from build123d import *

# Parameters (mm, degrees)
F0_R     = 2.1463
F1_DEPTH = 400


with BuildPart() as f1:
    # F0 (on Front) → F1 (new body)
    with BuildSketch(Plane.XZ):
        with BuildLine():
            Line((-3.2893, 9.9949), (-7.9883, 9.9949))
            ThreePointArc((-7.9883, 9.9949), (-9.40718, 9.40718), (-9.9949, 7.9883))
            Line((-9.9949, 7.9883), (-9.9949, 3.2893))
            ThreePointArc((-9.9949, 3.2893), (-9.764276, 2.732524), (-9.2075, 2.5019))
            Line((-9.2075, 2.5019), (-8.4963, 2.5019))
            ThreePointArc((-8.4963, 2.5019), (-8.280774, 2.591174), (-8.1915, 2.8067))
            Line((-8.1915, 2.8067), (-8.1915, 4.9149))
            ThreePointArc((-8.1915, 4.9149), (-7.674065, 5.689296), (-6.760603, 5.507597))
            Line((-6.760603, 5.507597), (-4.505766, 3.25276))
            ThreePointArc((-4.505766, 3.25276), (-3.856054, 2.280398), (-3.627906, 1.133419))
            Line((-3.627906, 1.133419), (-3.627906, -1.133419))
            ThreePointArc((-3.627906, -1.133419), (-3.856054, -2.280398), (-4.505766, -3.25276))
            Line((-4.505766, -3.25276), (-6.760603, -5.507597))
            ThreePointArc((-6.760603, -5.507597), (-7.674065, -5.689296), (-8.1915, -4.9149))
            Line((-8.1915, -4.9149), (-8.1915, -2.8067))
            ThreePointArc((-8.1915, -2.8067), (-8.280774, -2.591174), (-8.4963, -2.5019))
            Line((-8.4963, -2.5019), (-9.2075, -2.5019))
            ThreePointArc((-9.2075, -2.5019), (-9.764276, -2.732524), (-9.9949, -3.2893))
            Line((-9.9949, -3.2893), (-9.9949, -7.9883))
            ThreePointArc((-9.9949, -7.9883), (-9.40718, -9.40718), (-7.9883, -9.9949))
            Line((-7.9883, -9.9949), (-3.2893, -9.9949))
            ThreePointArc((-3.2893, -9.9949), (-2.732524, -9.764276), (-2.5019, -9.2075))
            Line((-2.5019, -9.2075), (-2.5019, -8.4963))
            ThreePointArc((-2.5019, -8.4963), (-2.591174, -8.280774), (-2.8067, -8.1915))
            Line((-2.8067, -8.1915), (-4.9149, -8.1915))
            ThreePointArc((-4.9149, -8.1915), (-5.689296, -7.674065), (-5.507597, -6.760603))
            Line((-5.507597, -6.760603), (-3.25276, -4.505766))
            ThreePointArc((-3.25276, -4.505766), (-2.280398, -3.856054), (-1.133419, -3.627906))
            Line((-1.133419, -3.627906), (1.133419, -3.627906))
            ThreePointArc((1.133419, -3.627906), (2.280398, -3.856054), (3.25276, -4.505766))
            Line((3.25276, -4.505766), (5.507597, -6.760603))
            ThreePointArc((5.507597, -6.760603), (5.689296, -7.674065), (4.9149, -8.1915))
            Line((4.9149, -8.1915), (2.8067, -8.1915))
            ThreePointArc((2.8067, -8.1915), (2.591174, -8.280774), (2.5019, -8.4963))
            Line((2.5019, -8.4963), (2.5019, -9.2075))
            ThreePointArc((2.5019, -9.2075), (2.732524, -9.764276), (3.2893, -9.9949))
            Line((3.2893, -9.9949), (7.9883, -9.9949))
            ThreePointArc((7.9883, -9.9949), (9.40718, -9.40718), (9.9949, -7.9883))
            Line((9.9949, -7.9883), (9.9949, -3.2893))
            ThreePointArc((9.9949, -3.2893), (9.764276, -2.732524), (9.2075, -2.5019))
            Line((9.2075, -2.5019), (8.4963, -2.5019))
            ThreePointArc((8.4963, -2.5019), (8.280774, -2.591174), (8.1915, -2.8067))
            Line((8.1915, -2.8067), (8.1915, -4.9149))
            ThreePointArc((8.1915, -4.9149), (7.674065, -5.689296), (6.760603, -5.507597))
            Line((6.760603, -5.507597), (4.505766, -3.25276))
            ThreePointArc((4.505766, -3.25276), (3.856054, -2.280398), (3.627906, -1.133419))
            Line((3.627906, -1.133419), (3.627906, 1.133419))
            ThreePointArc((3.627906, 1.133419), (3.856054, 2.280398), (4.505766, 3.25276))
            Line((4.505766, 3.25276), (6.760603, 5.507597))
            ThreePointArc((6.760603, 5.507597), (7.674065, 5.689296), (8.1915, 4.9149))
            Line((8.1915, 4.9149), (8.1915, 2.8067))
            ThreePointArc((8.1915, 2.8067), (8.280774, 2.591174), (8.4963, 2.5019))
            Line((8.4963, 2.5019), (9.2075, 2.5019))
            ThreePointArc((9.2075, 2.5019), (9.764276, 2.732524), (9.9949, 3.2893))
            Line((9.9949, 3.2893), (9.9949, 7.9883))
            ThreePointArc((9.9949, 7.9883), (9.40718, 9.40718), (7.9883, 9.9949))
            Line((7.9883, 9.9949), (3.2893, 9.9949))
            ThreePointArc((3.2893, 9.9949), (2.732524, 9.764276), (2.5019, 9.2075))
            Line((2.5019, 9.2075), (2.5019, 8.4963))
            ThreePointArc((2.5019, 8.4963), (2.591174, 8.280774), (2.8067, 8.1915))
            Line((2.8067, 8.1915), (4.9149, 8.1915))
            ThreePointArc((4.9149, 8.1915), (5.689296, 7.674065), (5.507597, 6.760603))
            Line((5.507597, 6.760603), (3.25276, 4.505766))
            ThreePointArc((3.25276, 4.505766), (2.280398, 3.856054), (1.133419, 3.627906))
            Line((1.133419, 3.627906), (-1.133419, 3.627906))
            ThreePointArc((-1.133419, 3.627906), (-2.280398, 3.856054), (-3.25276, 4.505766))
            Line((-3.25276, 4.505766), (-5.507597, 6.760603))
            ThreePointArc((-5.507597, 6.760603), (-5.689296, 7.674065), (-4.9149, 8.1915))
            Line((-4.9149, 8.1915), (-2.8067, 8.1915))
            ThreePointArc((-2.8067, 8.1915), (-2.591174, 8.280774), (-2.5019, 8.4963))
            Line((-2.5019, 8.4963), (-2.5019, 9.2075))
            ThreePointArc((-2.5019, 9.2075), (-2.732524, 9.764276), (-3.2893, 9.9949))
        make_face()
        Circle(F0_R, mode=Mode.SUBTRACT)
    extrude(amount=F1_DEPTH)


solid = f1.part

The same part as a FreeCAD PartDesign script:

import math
import FreeCAD as App
import Part
import Sketcher
Q = App.Units.Quantity

doc = App.newDocument("Part")
body = doc.addObject("PartDesign::Body", "Body")

# Sketch on XZ plane
sketch1 = body.newObject("Sketcher::SketchObject", "Sketch")
sketch1.AttachmentSupport = (doc.getObject("XZ_Plane"), [""])
sketch1.MapMode = "FlatFace"
sketch1.addGeometry(Part.LineSegment(App.Vector(-3.29, 9.99, 0), App.Vector(-7.99, 9.99, 0)), False)
sketch1.addGeometry(Part.ArcOfCircle(Part.Circle(App.Vector(-7.99, 7.99, 0), App.Vector(0, 0, 1), 2.01), math.radians(90), math.radians(180)), False)
sketch1.addGeometry(Part.LineSegment(App.Vector(-9.99, 7.99, 0), App.Vector(-9.99, 3.29, 0)), False)
sketch1.addGeometry(Part.ArcOfCircle(Part.Circle(App.Vector(-9.21, 3.29, 0), App.Vector(0, 0, 1), 0.79), math.radians(180), math.radians(270)), False)
sketch1.addGeometry(Part.LineSegment(App.Vector(-9.21, 2.5, 0), App.Vector(-8.5, 2.5, 0)), False)
sketch1.addGeometry(Part.ArcOfCircle(Part.Circle(App.Vector(-8.5, 2.81, 0), App.Vector(0, 0, 1), 0.3), math.radians(-90), math.radians(0)), False)
sketch1.addGeometry(Part.LineSegment(App.Vector(-8.19, 2.81, 0), App.Vector(-8.19, 4.91, 0)), False)
sketch1.addGeometry(Part.ArcOfCircle(Part.Circle(App.Vector(-7.35, 4.91, 0), App.Vector(0, 0, 1), 0.84), math.radians(45), math.radians(180)), False)
sketch1.addGeometry(Part.LineSegment(App.Vector(-6.76, 5.51, 0), App.Vector(-4.51, 3.25, 0)), False)
sketch1.addGeometry(Part.ArcOfCircle(Part.Circle(App.Vector(-6.63, 1.13, 0), App.Vector(0, 0, 1), 3), math.radians(0), math.radians(45)), False)
sketch1.addGeometry(Part.LineSegment(App.Vector(-3.63, 1.13, 0), App.Vector(-3.63, -1.13, 0)), False)
sketch1.addGeometry(Part.ArcOfCircle(Part.Circle(App.Vector(-6.63, -1.13, 0), App.Vector(0, 0, 1), 3), math.radians(-45), math.radians(0)), False)
sketch1.addGeometry(Part.LineSegment(App.Vector(-4.51, -3.25, 0), App.Vector(-6.76, -5.51, 0)), False)
sketch1.addGeometry(Part.ArcOfCircle(Part.Circle(App.Vector(-7.35, -4.91, 0), App.Vector(0, 0, 1), 0.84), math.radians(180), math.radians(315)), False)
sketch1.addGeometry(Part.LineSegment(App.Vector(-8.19, -4.91, 0), App.Vector(-8.19, -2.81, 0)), False)
sketch1.addGeometry(Part.ArcOfCircle(Part.Circle(App.Vector(-8.5, -2.81, 0), App.Vector(0, 0, 1), 0.3), math.radians(0), math.radians(90)), False)
sketch1.addGeometry(Part.LineSegment(App.Vector(-8.5, -2.5, 0), App.Vector(-9.21, -2.5, 0)), False)
sketch1.addGeometry(Part.ArcOfCircle(Part.Circle(App.Vector(-9.21, -3.29, 0), App.Vector(0, 0, 1), 0.79), math.radians(90), math.radians(180)), False)
sketch1.addGeometry(Part.LineSegment(App.Vector(-9.99, -3.29, 0), App.Vector(-9.99, -7.99, 0)), False)
sketch1.addGeometry(Part.ArcOfCircle(Part.Circle(App.Vector(-7.99, -7.99, 0), App.Vector(0, 0, 1), 2.01), math.radians(-180), math.radians(-90)), False)
sketch1.addGeometry(Part.LineSegment(App.Vector(-7.99, -9.99, 0), App.Vector(-3.29, -9.99, 0)), False)
sketch1.addGeometry(Part.ArcOfCircle(Part.Circle(App.Vector(-3.29, -9.21, 0), App.Vector(0, 0, 1), 0.79), math.radians(-90), math.radians(0)), False)
sketch1.addGeometry(Part.LineSegment(App.Vector(-2.5, -9.21, 0), App.Vector(-2.5, -8.5, 0)), False)
sketch1.addGeometry(Part.ArcOfCircle(Part.Circle(App.Vector(-2.81, -8.5, 0), App.Vector(0, 0, 1), 0.3), math.radians(0), math.radians(90)), False)
sketch1.addGeometry(Part.LineSegment(App.Vector(-2.81, -8.19, 0), App.Vector(-4.91, -8.19, 0)), False)
sketch1.addGeometry(Part.ArcOfCircle(Part.Circle(App.Vector(-4.91, -7.35, 0), App.Vector(0, 0, 1), 0.84), math.radians(135), math.radians(270)), False)
sketch1.addGeometry(Part.LineSegment(App.Vector(-5.51, -6.76, 0), App.Vector(-3.25, -4.51, 0)), False)
sketch1.addGeometry(Part.ArcOfCircle(Part.Circle(App.Vector(-1.13, -6.63, 0), App.Vector(0, 0, 1), 3), math.radians(90), math.radians(135)), False)
sketch1.addGeometry(Part.LineSegment(App.Vector(-1.13, -3.63, 0), App.Vector(1.13, -3.63, 0)), False)
sketch1.addGeometry(Part.ArcOfCircle(Part.Circle(App.Vector(1.13, -6.63, 0), App.Vector(0, 0, 1), 3), math.radians(45), math.radians(90)), False)
sketch1.addGeometry(Part.LineSegment(App.Vector(3.25, -4.51, 0), App.Vector(5.51, -6.76, 0)), False)
sketch1.addGeometry(Part.ArcOfCircle(Part.Circle(App.Vector(4.91, -7.35, 0), App.Vector(0, 0, 1), 0.84), math.radians(-90), math.radians(45)), False)
sketch1.addGeometry(Part.LineSegment(App.Vector(4.91, -8.19, 0), App.Vector(2.81, -8.19, 0)), False)
sketch1.addGeometry(Part.ArcOfCircle(Part.Circle(App.Vector(2.81, -8.5, 0), App.Vector(0, 0, 1), 0.3), math.radians(90), math.radians(180)), False)
sketch1.addGeometry(Part.LineSegment(App.Vector(2.5, -8.5, 0), App.Vector(2.5, -9.21, 0)), False)
sketch1.addGeometry(Part.ArcOfCircle(Part.Circle(App.Vector(3.29, -9.21, 0), App.Vector(0, 0, 1), 0.79), math.radians(180), math.radians(270)), False)
sketch1.addGeometry(Part.LineSegment(App.Vector(3.29, -9.99, 0), App.Vector(7.99, -9.99, 0)), False)
sketch1.addGeometry(Part.ArcOfCircle(Part.Circle(App.Vector(7.99, -7.99, 0), App.Vector(0, 0, 1), 2.01), math.radians(-90), math.radians(0)), False)
sketch1.addGeometry(Part.LineSegment(App.Vector(9.99, -7.99, 0), App.Vector(9.99, -3.29, 0)), False)
sketch1.addGeometry(Part.ArcOfCircle(Part.Circle(App.Vector(9.21, -3.29, 0), App.Vector(0, 0, 1), 0.79), math.radians(0), math.radians(90)), False)
sketch1.addGeometry(Part.LineSegment(App.Vector(9.21, -2.5, 0), App.Vector(8.5, -2.5, 0)), False)
sketch1.addGeometry(Part.ArcOfCircle(Part.Circle(App.Vector(8.5, -2.81, 0), App.Vector(0, 0, 1), 0.3), math.radians(90), math.radians(180)), False)
sketch1.addGeometry(Part.LineSegment(App.Vector(8.19, -2.81, 0), App.Vector(8.19, -4.91, 0)), False)
sketch1.addGeometry(Part.ArcOfCircle(Part.Circle(App.Vector(7.35, -4.91, 0), App.Vector(0, 0, 1), 0.84), math.radians(-135), math.radians(0)), False)
sketch1.addGeometry(Part.LineSegment(App.Vector(6.76, -5.51, 0), App.Vector(4.51, -3.25, 0)), False)
sketch1.addGeometry(Part.ArcOfCircle(Part.Circle(App.Vector(6.63, -1.13, 0), App.Vector(0, 0, 1), 3), math.radians(180), math.radians(225)), False)
sketch1.addGeometry(Part.LineSegment(App.Vector(3.63, -1.13, 0), App.Vector(3.63, 1.13, 0)), False)
sketch1.addGeometry(Part.ArcOfCircle(Part.Circle(App.Vector(6.63, 1.13, 0), App.Vector(0, 0, 1), 3), math.radians(135), math.radians(180)), False)
sketch1.addGeometry(Part.LineSegment(App.Vector(4.51, 3.25, 0), App.Vector(6.76, 5.51, 0)), False)
sketch1.addGeometry(Part.ArcOfCircle(Part.Circle(App.Vector(7.35, 4.91, 0), App.Vector(0, 0, 1), 0.84), math.radians(0), math.radians(135)), False)
sketch1.addGeometry(Part.LineSegment(App.Vector(8.19, 4.91, 0), App.Vector(8.19, 2.81, 0)), False)
sketch1.addGeometry(Part.ArcOfCircle(Part.Circle(App.Vector(8.5, 2.81, 0), App.Vector(0, 0, 1), 0.3), math.radians(-180), math.radians(-90)), False)
sketch1.addGeometry(Part.LineSegment(App.Vector(8.5, 2.5, 0), App.Vector(9.21, 2.5, 0)), False)
sketch1.addGeometry(Part.ArcOfCircle(Part.Circle(App.Vector(9.21, 3.29, 0), App.Vector(0, 0, 1), 0.79), math.radians(-90), math.radians(0)), False)
sketch1.addGeometry(Part.LineSegment(App.Vector(9.99, 3.29, 0), App.Vector(9.99, 7.99, 0)), False)
sketch1.addGeometry(Part.ArcOfCircle(Part.Circle(App.Vector(7.99, 7.99, 0), App.Vector(0, 0, 1), 2.01), math.radians(0), math.radians(90)), False)
sketch1.addGeometry(Part.LineSegment(App.Vector(7.99, 9.99, 0), App.Vector(3.29, 9.99, 0)), False)
sketch1.addGeometry(Part.ArcOfCircle(Part.Circle(App.Vector(3.29, 9.21, 0), App.Vector(0, 0, 1), 0.79), math.radians(90), math.radians(180)), False)
sketch1.addGeometry(Part.LineSegment(App.Vector(2.5, 9.21, 0), App.Vector(2.5, 8.5, 0)), False)
sketch1.addGeometry(Part.ArcOfCircle(Part.Circle(App.Vector(2.81, 8.5, 0), App.Vector(0, 0, 1), 0.3), math.radians(-180), math.radians(-90)), False)
sketch1.addGeometry(Part.LineSegment(App.Vector(2.81, 8.19, 0), App.Vector(4.91, 8.19, 0)), False)
sketch1.addGeometry(Part.ArcOfCircle(Part.Circle(App.Vector(4.91, 7.35, 0), App.Vector(0, 0, 1), 0.84), math.radians(-45), math.radians(90)), False)
sketch1.addGeometry(Part.LineSegment(App.Vector(5.51, 6.76, 0), App.Vector(3.25, 4.51, 0)), False)
sketch1.addGeometry(Part.ArcOfCircle(Part.Circle(App.Vector(1.13, 6.63, 0), App.Vector(0, 0, 1), 3), math.radians(-90), math.radians(-45)), False)
sketch1.addGeometry(Part.LineSegment(App.Vector(1.13, 3.63, 0), App.Vector(-1.13, 3.63, 0)), False)
sketch1.addGeometry(Part.ArcOfCircle(Part.Circle(App.Vector(-1.13, 6.63, 0), App.Vector(0, 0, 1), 3), math.radians(-135), math.radians(-90)), False)
sketch1.addGeometry(Part.LineSegment(App.Vector(-3.25, 4.51, 0), App.Vector(-5.51, 6.76, 0)), False)
sketch1.addGeometry(Part.ArcOfCircle(Part.Circle(App.Vector(-4.91, 7.35, 0), App.Vector(0, 0, 1), 0.84), math.radians(90), math.radians(225)), False)
sketch1.addGeometry(Part.LineSegment(App.Vector(-4.91, 8.19, 0), App.Vector(-2.81, 8.19, 0)), False)
sketch1.addGeometry(Part.ArcOfCircle(Part.Circle(App.Vector(-2.81, 8.5, 0), App.Vector(0, 0, 1), 0.3), math.radians(-90), math.radians(0)), False)
sketch1.addGeometry(Part.LineSegment(App.Vector(-2.5, 8.5, 0), App.Vector(-2.5, 9.21, 0)), False)
sketch1.addGeometry(Part.ArcOfCircle(Part.Circle(App.Vector(-3.29, 9.21, 0), App.Vector(0, 0, 1), 0.79), math.radians(0), math.radians(90)), False)
sketch1.addGeometry(Part.Circle(App.Vector(0, 0, 0), App.Vector(0, 0, 1), 2.15), False)
sketch1.addConstraint(Sketcher.Constraint("Tangent", 0, 2, 1, 1))
sketch1.addConstraint(Sketcher.Constraint("Tangent", 1, 2, 2, 1))
sketch1.addConstraint(Sketcher.Constraint("Tangent", 2, 2, 3, 1))
sketch1.addConstraint(Sketcher.Constraint("Tangent", 3, 2, 4, 1))
sketch1.addConstraint(Sketcher.Constraint("Tangent", 4, 2, 5, 1))
sketch1.addConstraint(Sketcher.Constraint("Tangent", 5, 2, 6, 1))
sketch1.addConstraint(Sketcher.Constraint("Tangent", 6, 2, 7, 2))
sketch1.addConstraint(Sketcher.Constraint("Tangent", 7, 1, 8, 1))
sketch1.addConstraint(Sketcher.Constraint("Tangent", 8, 2, 9, 2))
sketch1.addConstraint(Sketcher.Constraint("Tangent", 9, 1, 10, 1))
sketch1.addConstraint(Sketcher.Constraint("Tangent", 10, 2, 11, 2))
sketch1.addConstraint(Sketcher.Constraint("Tangent", 11, 1, 12, 1))
sketch1.addConstraint(Sketcher.Constraint("Tangent", 12, 2, 13, 2))
sketch1.addConstraint(Sketcher.Constraint("Tangent", 13, 1, 14, 1))
sketch1.addConstraint(Sketcher.Constraint("Tangent", 14, 2, 15, 1))
sketch1.addConstraint(Sketcher.Constraint("Tangent", 15, 2, 16, 1))
sketch1.addConstraint(Sketcher.Constraint("Tangent", 16, 2, 17, 1))
sketch1.addConstraint(Sketcher.Constraint("Tangent", 17, 2, 18, 1))
sketch1.addConstraint(Sketcher.Constraint("Tangent", 18, 2, 19, 1))
sketch1.addConstraint(Sketcher.Constraint("Tangent", 19, 2, 20, 1))
sketch1.addConstraint(Sketcher.Constraint("Tangent", 20, 2, 21, 1))
sketch1.addConstraint(Sketcher.Constraint("Tangent", 21, 2, 22, 1))
sketch1.addConstraint(Sketcher.Constraint("Tangent", 22, 2, 23, 1))
sketch1.addConstraint(Sketcher.Constraint("Tangent", 23, 2, 24, 1))
sketch1.addConstraint(Sketcher.Constraint("Tangent", 24, 2, 25, 2))
sketch1.addConstraint(Sketcher.Constraint("Tangent", 25, 1, 26, 1))
sketch1.addConstraint(Sketcher.Constraint("Tangent", 26, 2, 27, 2))
sketch1.addConstraint(Sketcher.Constraint("Tangent", 27, 1, 28, 1))
sketch1.addConstraint(Sketcher.Constraint("Tangent", 28, 2, 29, 2))
sketch1.addConstraint(Sketcher.Constraint("Tangent", 29, 1, 30, 1))
sketch1.addConstraint(Sketcher.Constraint("Tangent", 30, 2, 31, 2))
sketch1.addConstraint(Sketcher.Constraint("Tangent", 31, 1, 32, 1))
sketch1.addConstraint(Sketcher.Constraint("Tangent", 32, 2, 33, 1))
sketch1.addConstraint(Sketcher.Constraint("Tangent", 33, 2, 34, 1))
sketch1.addConstraint(Sketcher.Constraint("Tangent", 34, 2, 35, 1))
sketch1.addConstraint(Sketcher.Constraint("Tangent", 35, 2, 36, 1))
sketch1.addConstraint(Sketcher.Constraint("Tangent", 36, 2, 37, 1))
sketch1.addConstraint(Sketcher.Constraint("Tangent", 37, 2, 38, 1))
sketch1.addConstraint(Sketcher.Constraint("Tangent", 38, 2, 39, 1))
sketch1.addConstraint(Sketcher.Constraint("Tangent", 39, 2, 40, 1))
sketch1.addConstraint(Sketcher.Constraint("Tangent", 40, 2, 41, 1))
sketch1.addConstraint(Sketcher.Constraint("Tangent", 41, 2, 42, 1))
sketch1.addConstraint(Sketcher.Constraint("Tangent", 42, 2, 43, 2))
sketch1.addConstraint(Sketcher.Constraint("Tangent", 43, 1, 44, 1))
sketch1.addConstraint(Sketcher.Constraint("Tangent", 44, 2, 45, 2))
sketch1.addConstraint(Sketcher.Constraint("Tangent", 45, 1, 46, 1))
sketch1.addConstraint(Sketcher.Constraint("Tangent", 46, 2, 47, 2))
sketch1.addConstraint(Sketcher.Constraint("Tangent", 47, 1, 48, 1))
sketch1.addConstraint(Sketcher.Constraint("Tangent", 48, 2, 49, 2))
sketch1.addConstraint(Sketcher.Constraint("Tangent", 49, 1, 50, 1))
sketch1.addConstraint(Sketcher.Constraint("Tangent", 50, 2, 51, 1))
sketch1.addConstraint(Sketcher.Constraint("Tangent", 51, 2, 52, 1))
sketch1.addConstraint(Sketcher.Constraint("Tangent", 52, 2, 53, 1))
sketch1.addConstraint(Sketcher.Constraint("Tangent", 53, 2, 54, 1))
sketch1.addConstraint(Sketcher.Constraint("Tangent", 54, 2, 55, 1))
sketch1.addConstraint(Sketcher.Constraint("Tangent", 55, 2, 56, 1))
sketch1.addConstraint(Sketcher.Constraint("Tangent", 56, 2, 57, 1))
sketch1.addConstraint(Sketcher.Constraint("Tangent", 57, 2, 58, 1))
sketch1.addConstraint(Sketcher.Constraint("Tangent", 58, 2, 59, 1))
sketch1.addConstraint(Sketcher.Constraint("Tangent", 59, 2, 60, 1))
sketch1.addConstraint(Sketcher.Constraint("Tangent", 60, 2, 61, 2))
sketch1.addConstraint(Sketcher.Constraint("Tangent", 61, 1, 62, 1))
sketch1.addConstraint(Sketcher.Constraint("Tangent", 62, 2, 63, 2))
sketch1.addConstraint(Sketcher.Constraint("Tangent", 63, 1, 64, 1))
sketch1.addConstraint(Sketcher.Constraint("Tangent", 64, 2, 65, 2))
sketch1.addConstraint(Sketcher.Constraint("Tangent", 65, 1, 66, 1))
sketch1.addConstraint(Sketcher.Constraint("Tangent", 66, 2, 67, 2))
sketch1.addConstraint(Sketcher.Constraint("Tangent", 67, 1, 68, 1))
sketch1.addConstraint(Sketcher.Constraint("Tangent", 68, 2, 69, 1))
sketch1.addConstraint(Sketcher.Constraint("Tangent", 69, 2, 70, 1))
sketch1.addConstraint(Sketcher.Constraint("Tangent", 70, 2, 71, 1))
sketch1.addConstraint(Sketcher.Constraint("Tangent", 71, 2, 0, 1))
sketch1.addConstraint(Sketcher.Constraint("Horizontal", 0))
sketch1.addConstraint(Sketcher.Constraint("Vertical", 2))
sketch1.addConstraint(Sketcher.Constraint("Horizontal", 4))
sketch1.addConstraint(Sketcher.Constraint("Vertical", 6))
sketch1.addConstraint(Sketcher.Constraint("Vertical", 10))
sketch1.addConstraint(Sketcher.Constraint("Vertical", 14))
sketch1.addConstraint(Sketcher.Constraint("Horizontal", 16))
sketch1.addConstraint(Sketcher.Constraint("Vertical", 18))
sketch1.addConstraint(Sketcher.Constraint("Horizontal", 20))
sketch1.addConstraint(Sketcher.Constraint("Vertical", 22))
sketch1.addConstraint(Sketcher.Constraint("Horizontal", 24))
sketch1.addConstraint(Sketcher.Constraint("Horizontal", 28))
sketch1.addConstraint(Sketcher.Constraint("Horizontal", 32))
sketch1.addConstraint(Sketcher.Constraint("Vertical", 34))
sketch1.addConstraint(Sketcher.Constraint("Horizontal", 36))
sketch1.addConstraint(Sketcher.Constraint("Vertical", 38))
sketch1.addConstraint(Sketcher.Constraint("Horizontal", 40))
sketch1.addConstraint(Sketcher.Constraint("Vertical", 42))
sketch1.addConstraint(Sketcher.Constraint("Vertical", 46))
sketch1.addConstraint(Sketcher.Constraint("Vertical", 50))
sketch1.addConstraint(Sketcher.Constraint("Horizontal", 52))
sketch1.addConstraint(Sketcher.Constraint("Vertical", 54))
sketch1.addConstraint(Sketcher.Constraint("Horizontal", 56))
sketch1.addConstraint(Sketcher.Constraint("Vertical", 58))
sketch1.addConstraint(Sketcher.Constraint("Horizontal", 60))
sketch1.addConstraint(Sketcher.Constraint("Horizontal", 64))
sketch1.addConstraint(Sketcher.Constraint("Horizontal", 68))
sketch1.addConstraint(Sketcher.Constraint("Vertical", 70))
sketch1.addConstraint(Sketcher.Constraint("Coincident", 72, 3, -1, 1))
sketch1.addConstraint(Sketcher.Constraint("Equal", 9, 11))
sketch1.addConstraint(Sketcher.Constraint("Equal", 7, 13))
sketch1.addConstraint(Sketcher.Constraint("Equal", 5, 15))
sketch1.addConstraint(Sketcher.Constraint("Equal", 3, 17))
sketch1.addConstraint(Sketcher.Constraint("Equal", 1, 19))
sketch1.addConstraint(Sketcher.Constraint("Equal", 17, 21))
sketch1.addConstraint(Sketcher.Constraint("Equal", 15, 23))
sketch1.addConstraint(Sketcher.Constraint("Equal", 13, 25))
sketch1.addConstraint(Sketcher.Constraint("Equal", 11, 27))
sketch1.addConstraint(Sketcher.Constraint("Equal", 27, 29))
sketch1.addConstraint(Sketcher.Constraint("Equal", 25, 31))
sketch1.addConstraint(Sketcher.Constraint("Equal", 23, 33))
sketch1.addConstraint(Sketcher.Constraint("Equal", 21, 35))
sketch1.addConstraint(Sketcher.Constraint("Equal", 19, 37))
sketch1.addConstraint(Sketcher.Constraint("Equal", 35, 39))
sketch1.addConstraint(Sketcher.Constraint("Equal", 33, 41))
sketch1.addConstraint(Sketcher.Constraint("Equal", 31, 43))
sketch1.addConstraint(Sketcher.Constraint("Equal", 29, 45))
sketch1.addConstraint(Sketcher.Constraint("Equal", 45, 47))
sketch1.addConstraint(Sketcher.Constraint("Equal", 43, 49))
sketch1.addConstraint(Sketcher.Constraint("Equal", 41, 51))
sketch1.addConstraint(Sketcher.Constraint("Equal", 39, 53))
sketch1.addConstraint(Sketcher.Constraint("Equal", 37, 55))
sketch1.addConstraint(Sketcher.Constraint("Equal", 53, 57))
sketch1.addConstraint(Sketcher.Constraint("Equal", 51, 59))
sketch1.addConstraint(Sketcher.Constraint("Equal", 49, 61))
sketch1.addConstraint(Sketcher.Constraint("Equal", 47, 63))
sketch1.addConstraint(Sketcher.Constraint("Equal", 63, 65))
sketch1.addConstraint(Sketcher.Constraint("Equal", 61, 67))
sketch1.addConstraint(Sketcher.Constraint("Equal", 59, 69))
sketch1.addConstraint(Sketcher.Constraint("Equal", 57, 71))
sketch1.addConstraint(Sketcher.Constraint("Symmetric", 1, 3, 37, 3, -1, 1))
sketch1.addConstraint(Sketcher.Constraint("Symmetric", 5, 3, 41, 3, -1, 1))
sketch1.addConstraint(Sketcher.Constraint("Symmetric", 9, 3, 45, 3, -1, 1))
sketch1.addConstraint(Sketcher.Constraint("Symmetric", 13, 3, 49, 3, -1, 1))
sketch1.addConstraint(Sketcher.Constraint("Symmetric", 17, 3, 53, 3, -1, 1))
sketch1.addConstraint(Sketcher.Constraint("Symmetric", 21, 3, 57, 3, -1, 1))
sketch1.addConstraint(Sketcher.Constraint("Symmetric", 25, 3, 61, 3, -1, 1))
sketch1.addConstraint(Sketcher.Constraint("Symmetric", 27, 3, 63, 3, -1, 1))
sketch1.addConstraint(Sketcher.Constraint("Symmetric", 31, 3, 67, 3, -1, 1))
sketch1.addConstraint(Sketcher.Constraint("Symmetric", 25, 3, 31, 3, -2))
sketch1.addConstraint(Sketcher.Constraint("Symmetric", 21, 3, 35, 3, -2))
sketch1.addConstraint(Sketcher.Constraint("Symmetric", 17, 3, 39, 3, -2))
sketch1.addConstraint(Sketcher.Constraint("Symmetric", 13, 3, 43, 3, -2))
sketch1.addConstraint(Sketcher.Constraint("Symmetric", 8, 2, 47, 1, -2))
sketch1.addConstraint(Sketcher.Constraint("Perpendicular", 8, 12))
sketch1.addConstraint(Sketcher.Constraint("Parallel", 12, 26))
sketch1.addConstraint(Sketcher.Constraint("Perpendicular", 26, 30))
sketch1.addConstraint(Sketcher.Constraint("Perpendicular", 44, 48))
sketch1.addConstraint(Sketcher.Constraint("Perpendicular", 62, 66))
sketch1.addConstraint(Sketcher.Constraint("Vertical", 23, 3, 69, 3))
sketch1.addConstraint(Sketcher.Constraint("Equal", 56, 2))
sketch1.addConstraint(Sketcher.Constraint("Equal", 68, 6))
sketch1.addConstraint(Sketcher.Constraint("Equal", 64, 10))
sketch1.addConstraint(Sketcher.Constraint("Equal", 52, 22))
sketch1.addConstraint(Sketcher.Constraint("Equal", 12, 26))
sketch1.addConstraint(Sketcher.Constraint("Diameter", 72, Q("0.169 in")))
sketch1.addConstraint(Sketcher.Constraint("Radius", 1, Q("0.0790001 in")))
sketch1.addConstraint(Sketcher.Constraint("Radius", 3, Q("0.031 in")))
sketch1.addConstraint(Sketcher.Constraint("Radius", 5, Q("0.012 in")))
sketch1.addConstraint(Sketcher.Constraint("Radius", 7, Q("0.033 in")))
sketch1.addConstraint(Sketcher.Constraint("Radius", 9, Q("0.1179999 in")))
sketch1.addConstraint(Sketcher.Constraint("DistanceX", 0, 2, 0, 1, Q("0.185 in")))
sketch1.addConstraint(Sketcher.Constraint("DistanceX", 4, 1, 4, 2, Q("0.028 in")))
sketch1.addConstraint(Sketcher.Constraint("DistanceX", 24, 2, 24, 1, Q("0.083 in")))
sketch1.addConstraint(Sketcher.Constraint("DistanceX", 1, 3, -1, 1, Q("0.3144999 in")))
sketch1.addConstraint(Sketcher.Constraint("Distance", 8, Q("3.188821 mm")))
pad1 = body.newObject("PartDesign::Pad", "Pad")
pad1.Profile = sketch1
pad1.Length = 400

doc.recompute()
